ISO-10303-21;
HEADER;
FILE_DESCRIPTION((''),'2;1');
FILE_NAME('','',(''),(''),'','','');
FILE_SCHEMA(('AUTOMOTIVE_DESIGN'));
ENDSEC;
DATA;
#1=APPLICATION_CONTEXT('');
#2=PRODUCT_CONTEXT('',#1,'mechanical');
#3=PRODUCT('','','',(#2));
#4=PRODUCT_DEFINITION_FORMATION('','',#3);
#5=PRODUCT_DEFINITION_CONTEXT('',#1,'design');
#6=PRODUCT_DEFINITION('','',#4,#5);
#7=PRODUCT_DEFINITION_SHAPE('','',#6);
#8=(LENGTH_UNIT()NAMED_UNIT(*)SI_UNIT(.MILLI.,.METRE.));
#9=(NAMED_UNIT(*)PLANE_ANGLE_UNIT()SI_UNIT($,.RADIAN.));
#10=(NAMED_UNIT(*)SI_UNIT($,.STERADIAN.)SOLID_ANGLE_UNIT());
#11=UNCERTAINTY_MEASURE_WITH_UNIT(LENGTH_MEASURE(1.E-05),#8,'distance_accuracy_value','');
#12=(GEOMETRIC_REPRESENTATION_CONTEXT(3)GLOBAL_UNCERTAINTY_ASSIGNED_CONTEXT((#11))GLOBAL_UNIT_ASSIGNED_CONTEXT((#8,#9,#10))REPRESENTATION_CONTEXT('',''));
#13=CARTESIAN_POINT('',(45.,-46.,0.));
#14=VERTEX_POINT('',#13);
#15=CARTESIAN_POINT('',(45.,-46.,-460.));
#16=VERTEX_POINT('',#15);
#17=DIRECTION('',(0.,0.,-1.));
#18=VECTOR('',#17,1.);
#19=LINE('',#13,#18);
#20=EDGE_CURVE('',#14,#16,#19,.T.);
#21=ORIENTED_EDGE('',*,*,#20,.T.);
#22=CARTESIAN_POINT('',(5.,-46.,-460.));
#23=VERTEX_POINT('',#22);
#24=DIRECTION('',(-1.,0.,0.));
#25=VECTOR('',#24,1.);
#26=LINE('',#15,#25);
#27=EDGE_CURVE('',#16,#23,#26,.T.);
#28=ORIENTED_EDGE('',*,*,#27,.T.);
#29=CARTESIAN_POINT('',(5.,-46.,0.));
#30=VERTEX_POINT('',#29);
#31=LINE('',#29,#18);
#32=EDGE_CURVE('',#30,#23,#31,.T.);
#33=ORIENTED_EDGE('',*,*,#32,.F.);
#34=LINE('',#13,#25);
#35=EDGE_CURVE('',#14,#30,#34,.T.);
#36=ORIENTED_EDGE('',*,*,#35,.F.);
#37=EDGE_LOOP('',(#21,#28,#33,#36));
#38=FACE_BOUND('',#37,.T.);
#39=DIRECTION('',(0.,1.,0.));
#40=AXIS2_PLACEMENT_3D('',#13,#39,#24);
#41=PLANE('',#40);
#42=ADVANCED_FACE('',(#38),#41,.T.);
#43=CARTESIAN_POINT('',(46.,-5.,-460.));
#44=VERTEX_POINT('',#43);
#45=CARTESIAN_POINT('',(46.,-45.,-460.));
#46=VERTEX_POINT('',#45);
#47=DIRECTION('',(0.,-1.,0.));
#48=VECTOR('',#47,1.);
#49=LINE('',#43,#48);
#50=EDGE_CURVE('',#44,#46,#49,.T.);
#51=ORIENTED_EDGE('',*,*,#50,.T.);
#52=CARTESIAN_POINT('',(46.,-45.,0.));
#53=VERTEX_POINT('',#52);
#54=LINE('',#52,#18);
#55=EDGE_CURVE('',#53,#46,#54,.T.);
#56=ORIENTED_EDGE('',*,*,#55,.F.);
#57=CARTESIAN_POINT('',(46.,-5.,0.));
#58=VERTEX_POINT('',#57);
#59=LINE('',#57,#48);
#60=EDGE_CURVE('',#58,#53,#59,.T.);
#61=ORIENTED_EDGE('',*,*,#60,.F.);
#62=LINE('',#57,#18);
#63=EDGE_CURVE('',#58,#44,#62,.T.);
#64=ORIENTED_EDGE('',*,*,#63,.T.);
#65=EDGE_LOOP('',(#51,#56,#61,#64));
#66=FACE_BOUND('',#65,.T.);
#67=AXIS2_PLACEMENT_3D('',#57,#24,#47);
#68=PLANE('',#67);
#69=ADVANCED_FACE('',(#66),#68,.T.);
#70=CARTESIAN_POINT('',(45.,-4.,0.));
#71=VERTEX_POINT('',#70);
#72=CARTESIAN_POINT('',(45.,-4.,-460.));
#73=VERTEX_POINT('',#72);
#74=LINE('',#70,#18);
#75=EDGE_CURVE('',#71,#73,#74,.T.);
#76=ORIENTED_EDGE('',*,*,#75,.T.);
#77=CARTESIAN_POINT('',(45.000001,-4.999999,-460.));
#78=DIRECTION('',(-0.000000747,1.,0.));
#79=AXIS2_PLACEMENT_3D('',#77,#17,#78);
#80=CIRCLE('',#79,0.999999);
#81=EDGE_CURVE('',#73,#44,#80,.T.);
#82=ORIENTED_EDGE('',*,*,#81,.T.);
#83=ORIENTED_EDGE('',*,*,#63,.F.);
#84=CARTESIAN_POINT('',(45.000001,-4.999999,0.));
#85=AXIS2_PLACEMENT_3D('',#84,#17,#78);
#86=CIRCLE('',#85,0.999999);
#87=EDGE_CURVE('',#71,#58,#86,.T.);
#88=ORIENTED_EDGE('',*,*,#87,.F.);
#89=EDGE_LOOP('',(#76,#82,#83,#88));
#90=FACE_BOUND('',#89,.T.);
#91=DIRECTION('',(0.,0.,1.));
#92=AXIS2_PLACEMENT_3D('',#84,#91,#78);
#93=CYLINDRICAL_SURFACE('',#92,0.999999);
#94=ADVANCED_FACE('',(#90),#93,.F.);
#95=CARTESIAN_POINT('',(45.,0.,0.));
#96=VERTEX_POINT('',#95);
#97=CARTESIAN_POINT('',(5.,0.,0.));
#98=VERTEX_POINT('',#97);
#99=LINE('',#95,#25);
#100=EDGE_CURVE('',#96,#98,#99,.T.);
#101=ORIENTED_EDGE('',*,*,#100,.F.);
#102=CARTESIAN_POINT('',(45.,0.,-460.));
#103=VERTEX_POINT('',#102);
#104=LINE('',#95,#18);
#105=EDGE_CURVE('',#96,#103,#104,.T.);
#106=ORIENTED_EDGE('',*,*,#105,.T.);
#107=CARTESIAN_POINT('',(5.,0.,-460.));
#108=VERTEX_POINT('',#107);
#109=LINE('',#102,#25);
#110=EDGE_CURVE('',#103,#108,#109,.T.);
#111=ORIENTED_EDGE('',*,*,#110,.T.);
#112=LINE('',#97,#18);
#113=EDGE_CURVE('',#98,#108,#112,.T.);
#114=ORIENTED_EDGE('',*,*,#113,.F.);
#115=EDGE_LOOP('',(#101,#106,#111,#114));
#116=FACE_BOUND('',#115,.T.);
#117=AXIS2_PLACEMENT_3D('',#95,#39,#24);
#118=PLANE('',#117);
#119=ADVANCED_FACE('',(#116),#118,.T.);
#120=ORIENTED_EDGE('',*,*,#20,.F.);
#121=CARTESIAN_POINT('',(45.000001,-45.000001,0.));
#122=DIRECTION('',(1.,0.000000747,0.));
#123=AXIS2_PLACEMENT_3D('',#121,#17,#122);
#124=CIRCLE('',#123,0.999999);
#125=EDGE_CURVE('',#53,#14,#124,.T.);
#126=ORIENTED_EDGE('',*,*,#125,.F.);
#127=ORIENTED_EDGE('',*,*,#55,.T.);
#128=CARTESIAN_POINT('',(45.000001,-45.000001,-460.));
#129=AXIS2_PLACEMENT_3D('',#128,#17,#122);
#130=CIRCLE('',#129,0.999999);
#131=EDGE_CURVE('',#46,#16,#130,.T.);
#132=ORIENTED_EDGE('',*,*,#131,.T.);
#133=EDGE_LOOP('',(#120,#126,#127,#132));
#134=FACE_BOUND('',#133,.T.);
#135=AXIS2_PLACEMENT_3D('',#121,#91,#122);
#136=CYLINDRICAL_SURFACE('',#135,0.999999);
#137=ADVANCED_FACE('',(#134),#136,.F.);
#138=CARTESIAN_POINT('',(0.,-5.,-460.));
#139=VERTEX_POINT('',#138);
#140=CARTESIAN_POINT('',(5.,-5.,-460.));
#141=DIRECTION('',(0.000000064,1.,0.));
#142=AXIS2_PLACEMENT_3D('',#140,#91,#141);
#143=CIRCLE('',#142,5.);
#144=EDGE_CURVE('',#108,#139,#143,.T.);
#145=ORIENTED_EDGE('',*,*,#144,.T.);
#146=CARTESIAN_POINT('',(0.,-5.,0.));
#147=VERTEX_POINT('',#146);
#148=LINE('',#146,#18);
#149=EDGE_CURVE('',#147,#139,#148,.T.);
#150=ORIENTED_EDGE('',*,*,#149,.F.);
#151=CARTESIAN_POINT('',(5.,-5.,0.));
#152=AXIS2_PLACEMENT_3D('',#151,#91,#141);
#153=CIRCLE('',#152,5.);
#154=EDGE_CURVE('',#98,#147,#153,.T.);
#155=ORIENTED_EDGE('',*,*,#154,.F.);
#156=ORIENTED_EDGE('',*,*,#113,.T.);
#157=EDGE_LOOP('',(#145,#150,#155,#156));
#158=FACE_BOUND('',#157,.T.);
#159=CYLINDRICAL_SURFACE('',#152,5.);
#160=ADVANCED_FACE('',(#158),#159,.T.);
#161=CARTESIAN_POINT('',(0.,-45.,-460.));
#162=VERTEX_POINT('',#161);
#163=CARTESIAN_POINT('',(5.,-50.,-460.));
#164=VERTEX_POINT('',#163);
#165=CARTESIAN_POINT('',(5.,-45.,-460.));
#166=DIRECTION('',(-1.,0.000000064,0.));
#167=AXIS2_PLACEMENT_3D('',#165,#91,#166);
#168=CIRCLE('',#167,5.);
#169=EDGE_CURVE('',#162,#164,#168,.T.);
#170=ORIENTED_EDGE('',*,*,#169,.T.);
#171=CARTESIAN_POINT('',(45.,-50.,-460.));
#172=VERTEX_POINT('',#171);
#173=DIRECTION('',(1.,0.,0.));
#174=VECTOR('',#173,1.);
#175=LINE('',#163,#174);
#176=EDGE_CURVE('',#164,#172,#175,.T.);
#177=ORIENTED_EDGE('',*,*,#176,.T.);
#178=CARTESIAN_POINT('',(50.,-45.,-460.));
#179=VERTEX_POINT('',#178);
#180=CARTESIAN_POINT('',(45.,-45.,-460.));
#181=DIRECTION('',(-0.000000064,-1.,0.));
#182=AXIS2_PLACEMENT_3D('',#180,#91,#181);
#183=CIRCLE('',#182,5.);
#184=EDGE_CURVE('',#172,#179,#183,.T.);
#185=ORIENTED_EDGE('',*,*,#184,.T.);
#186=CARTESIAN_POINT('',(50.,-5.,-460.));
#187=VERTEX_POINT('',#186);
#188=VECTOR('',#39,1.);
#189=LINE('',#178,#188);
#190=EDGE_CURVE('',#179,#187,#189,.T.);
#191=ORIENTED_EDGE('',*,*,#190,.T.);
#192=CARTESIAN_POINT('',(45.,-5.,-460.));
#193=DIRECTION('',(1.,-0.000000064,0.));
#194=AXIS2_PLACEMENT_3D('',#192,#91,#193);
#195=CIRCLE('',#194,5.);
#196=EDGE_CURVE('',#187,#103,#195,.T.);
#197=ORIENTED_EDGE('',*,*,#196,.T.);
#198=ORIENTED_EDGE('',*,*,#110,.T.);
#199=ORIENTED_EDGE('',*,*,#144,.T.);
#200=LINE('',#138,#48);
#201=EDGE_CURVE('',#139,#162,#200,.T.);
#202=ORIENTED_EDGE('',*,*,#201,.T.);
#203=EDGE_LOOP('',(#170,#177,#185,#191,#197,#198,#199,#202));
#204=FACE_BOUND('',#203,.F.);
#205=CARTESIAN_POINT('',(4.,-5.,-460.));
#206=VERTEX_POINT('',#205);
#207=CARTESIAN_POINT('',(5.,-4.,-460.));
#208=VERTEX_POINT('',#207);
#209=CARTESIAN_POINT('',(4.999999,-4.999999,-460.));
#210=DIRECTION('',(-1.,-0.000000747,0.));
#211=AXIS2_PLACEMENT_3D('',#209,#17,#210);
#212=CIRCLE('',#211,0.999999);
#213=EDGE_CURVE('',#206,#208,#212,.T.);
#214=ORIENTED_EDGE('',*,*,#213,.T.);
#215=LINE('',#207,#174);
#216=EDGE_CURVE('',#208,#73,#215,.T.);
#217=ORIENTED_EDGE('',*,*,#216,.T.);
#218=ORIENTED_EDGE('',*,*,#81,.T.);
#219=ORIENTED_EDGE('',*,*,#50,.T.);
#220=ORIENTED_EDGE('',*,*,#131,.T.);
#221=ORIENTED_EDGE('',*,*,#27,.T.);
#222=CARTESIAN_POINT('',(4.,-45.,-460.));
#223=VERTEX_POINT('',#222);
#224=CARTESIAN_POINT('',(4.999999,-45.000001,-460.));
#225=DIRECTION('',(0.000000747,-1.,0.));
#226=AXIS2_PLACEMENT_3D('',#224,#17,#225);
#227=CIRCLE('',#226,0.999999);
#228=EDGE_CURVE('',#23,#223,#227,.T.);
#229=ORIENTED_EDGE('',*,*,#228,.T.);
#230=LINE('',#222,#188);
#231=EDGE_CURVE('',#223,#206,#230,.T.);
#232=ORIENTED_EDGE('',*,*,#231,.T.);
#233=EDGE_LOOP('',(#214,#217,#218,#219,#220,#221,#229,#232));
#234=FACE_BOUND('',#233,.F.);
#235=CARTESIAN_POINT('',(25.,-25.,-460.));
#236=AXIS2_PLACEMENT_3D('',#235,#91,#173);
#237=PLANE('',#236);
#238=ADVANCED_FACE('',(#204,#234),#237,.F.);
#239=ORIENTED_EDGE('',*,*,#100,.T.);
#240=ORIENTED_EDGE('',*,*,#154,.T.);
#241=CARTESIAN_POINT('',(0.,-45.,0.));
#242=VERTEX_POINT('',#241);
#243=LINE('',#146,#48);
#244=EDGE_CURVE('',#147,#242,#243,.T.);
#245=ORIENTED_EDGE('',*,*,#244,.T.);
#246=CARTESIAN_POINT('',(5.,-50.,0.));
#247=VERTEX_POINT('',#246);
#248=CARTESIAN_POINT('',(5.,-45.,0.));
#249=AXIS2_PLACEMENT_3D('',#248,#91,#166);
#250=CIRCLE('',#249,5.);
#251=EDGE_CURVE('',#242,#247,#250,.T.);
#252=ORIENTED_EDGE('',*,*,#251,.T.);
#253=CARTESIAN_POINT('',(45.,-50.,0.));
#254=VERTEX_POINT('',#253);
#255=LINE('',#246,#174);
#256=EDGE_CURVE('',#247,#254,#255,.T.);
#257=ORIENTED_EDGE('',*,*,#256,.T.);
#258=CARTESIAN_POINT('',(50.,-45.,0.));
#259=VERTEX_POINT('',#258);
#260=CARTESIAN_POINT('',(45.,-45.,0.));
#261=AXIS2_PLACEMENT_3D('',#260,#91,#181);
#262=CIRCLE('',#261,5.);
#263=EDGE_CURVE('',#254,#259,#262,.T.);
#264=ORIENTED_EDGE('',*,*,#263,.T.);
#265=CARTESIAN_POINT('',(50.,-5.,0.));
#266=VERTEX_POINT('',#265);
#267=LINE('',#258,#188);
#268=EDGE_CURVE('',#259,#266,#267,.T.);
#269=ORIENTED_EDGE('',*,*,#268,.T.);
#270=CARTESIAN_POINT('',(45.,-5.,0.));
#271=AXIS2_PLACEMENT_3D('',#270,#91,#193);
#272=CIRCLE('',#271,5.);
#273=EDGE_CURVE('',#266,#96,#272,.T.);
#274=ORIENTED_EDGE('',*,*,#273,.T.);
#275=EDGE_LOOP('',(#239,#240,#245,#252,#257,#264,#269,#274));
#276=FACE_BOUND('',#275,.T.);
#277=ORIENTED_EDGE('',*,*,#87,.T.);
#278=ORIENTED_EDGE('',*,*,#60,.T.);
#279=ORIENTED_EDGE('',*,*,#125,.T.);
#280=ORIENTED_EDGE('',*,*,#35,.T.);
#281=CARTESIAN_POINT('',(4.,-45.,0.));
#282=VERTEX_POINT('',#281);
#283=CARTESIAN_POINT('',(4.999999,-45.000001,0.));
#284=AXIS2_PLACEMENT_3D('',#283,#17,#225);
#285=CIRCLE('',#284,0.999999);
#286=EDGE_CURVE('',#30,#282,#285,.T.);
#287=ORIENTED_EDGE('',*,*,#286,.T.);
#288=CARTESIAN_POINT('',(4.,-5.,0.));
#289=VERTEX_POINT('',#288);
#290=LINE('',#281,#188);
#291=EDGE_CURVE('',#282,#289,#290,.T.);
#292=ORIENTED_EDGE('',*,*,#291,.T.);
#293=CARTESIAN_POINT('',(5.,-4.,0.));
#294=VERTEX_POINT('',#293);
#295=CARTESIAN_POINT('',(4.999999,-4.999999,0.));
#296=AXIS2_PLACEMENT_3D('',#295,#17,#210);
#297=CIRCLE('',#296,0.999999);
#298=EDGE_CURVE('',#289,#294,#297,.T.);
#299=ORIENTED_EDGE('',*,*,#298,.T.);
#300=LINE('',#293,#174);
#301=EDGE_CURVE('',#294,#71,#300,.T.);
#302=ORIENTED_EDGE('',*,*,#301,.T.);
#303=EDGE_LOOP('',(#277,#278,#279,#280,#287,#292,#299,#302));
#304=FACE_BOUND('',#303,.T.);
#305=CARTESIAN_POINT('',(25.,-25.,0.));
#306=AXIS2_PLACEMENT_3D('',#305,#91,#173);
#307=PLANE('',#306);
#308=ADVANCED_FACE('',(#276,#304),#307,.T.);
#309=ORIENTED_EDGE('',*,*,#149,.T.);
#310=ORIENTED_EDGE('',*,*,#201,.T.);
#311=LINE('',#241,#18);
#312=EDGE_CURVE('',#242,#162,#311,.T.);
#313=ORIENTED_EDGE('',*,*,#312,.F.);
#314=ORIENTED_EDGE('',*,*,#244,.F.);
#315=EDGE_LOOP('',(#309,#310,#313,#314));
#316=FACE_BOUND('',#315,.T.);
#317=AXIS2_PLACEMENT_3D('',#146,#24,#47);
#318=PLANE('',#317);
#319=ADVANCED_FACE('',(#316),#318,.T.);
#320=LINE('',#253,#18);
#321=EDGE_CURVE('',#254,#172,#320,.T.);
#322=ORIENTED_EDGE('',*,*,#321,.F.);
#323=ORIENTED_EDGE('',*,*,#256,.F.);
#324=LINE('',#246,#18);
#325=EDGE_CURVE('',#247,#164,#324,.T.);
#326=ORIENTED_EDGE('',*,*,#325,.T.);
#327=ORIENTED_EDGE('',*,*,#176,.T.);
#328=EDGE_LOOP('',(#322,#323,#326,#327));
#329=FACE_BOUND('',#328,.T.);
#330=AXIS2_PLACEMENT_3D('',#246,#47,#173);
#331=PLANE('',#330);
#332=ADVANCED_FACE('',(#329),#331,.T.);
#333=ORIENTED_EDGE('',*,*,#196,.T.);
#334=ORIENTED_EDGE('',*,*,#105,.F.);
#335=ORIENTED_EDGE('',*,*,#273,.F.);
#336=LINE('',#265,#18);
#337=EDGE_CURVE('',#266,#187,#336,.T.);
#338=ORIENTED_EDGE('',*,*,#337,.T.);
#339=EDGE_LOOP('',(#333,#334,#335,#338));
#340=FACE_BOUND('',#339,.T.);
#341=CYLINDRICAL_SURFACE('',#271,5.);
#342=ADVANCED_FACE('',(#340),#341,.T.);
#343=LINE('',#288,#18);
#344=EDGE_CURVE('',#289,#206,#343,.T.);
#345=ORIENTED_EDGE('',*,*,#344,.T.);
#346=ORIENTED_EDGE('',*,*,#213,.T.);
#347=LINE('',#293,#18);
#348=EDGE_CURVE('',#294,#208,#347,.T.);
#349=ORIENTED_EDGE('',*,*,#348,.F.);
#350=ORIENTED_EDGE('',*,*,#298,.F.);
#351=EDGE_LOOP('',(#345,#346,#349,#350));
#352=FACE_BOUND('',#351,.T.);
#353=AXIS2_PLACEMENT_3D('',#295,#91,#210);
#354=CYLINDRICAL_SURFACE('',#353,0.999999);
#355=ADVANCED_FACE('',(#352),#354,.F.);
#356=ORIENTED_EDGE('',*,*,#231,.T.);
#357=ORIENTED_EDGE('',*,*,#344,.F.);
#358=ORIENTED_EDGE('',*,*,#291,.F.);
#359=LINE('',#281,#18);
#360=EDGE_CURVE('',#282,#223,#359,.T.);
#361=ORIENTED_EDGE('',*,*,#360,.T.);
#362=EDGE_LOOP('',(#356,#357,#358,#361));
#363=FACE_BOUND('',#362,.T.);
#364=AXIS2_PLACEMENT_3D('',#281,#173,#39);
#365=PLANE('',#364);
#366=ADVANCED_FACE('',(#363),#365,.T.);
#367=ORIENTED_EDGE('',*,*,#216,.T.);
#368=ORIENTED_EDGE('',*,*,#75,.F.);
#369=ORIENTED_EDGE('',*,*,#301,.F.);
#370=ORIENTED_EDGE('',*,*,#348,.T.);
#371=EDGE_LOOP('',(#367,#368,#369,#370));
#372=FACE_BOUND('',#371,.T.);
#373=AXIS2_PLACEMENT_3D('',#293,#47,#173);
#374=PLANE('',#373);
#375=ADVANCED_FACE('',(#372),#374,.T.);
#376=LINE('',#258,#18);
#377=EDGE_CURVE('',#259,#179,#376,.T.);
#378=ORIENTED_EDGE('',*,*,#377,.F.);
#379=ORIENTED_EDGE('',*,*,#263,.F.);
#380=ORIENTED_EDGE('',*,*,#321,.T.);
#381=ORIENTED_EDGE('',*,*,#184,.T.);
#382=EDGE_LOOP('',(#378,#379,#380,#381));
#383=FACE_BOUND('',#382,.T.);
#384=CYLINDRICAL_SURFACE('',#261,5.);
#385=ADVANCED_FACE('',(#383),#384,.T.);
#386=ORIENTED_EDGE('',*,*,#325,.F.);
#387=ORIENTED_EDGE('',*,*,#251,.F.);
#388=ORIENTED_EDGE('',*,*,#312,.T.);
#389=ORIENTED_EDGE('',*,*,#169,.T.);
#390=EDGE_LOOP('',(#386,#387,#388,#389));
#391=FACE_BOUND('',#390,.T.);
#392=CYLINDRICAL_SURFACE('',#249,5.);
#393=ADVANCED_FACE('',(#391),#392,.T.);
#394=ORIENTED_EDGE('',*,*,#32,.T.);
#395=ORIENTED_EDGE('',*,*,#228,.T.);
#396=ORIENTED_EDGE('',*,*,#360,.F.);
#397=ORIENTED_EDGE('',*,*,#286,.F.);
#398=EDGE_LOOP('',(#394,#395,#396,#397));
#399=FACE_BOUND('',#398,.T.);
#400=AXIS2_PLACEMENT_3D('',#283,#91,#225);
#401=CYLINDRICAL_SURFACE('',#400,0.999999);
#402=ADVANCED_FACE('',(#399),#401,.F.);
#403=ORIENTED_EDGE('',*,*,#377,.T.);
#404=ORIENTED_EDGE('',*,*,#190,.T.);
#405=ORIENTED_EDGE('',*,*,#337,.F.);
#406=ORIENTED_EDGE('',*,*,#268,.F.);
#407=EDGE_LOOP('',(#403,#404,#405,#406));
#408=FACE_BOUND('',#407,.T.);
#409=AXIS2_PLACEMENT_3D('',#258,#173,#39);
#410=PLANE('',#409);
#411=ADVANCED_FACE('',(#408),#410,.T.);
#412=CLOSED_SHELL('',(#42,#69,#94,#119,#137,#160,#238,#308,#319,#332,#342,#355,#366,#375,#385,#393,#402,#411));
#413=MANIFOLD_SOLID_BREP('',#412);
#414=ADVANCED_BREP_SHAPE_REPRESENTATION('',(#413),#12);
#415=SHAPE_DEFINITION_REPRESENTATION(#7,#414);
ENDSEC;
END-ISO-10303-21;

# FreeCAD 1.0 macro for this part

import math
import FreeCAD as App
import Part
import Sketcher

doc = App.newDocument("Part")
body = doc.addObject("PartDesign::Body", "Body")

sketch1 = body.newObject("Sketcher::SketchObject", "Sketch")
sketch1.AttachmentSupport = (doc.getObject("XY_Plane"), [""])
sketch1.MapMode = "FlatFace"
sketch1.addGeometry(Part.LineSegment(App.Vector(45, 0, 0), App.Vector(5, 0, 0)), False)
sketch1.addGeometry(Part.ArcOfCircle(Part.Circle(App.Vector(5, -5, 0), App.Vector(0, 0, 1), 5), math.radians(90), math.radians(180)), False)
sketch1.addGeometry(Part.LineSegment(App.Vector(0, -5, 0), App.Vector(0, -45, 0)), False)
sketch1.addGeometry(Part.ArcOfCircle(Part.Circle(App.Vector(5, -45, 0), App.Vector(0, 0, 1), 5), math.radians(180), math.radians(270)), False)
sketch1.addGeometry(Part.LineSegment(App.Vector(5, -50, 0), App.Vector(45, -50, 0)), False)
sketch1.addGeometry(Part.ArcOfCircle(Part.Circle(App.Vector(45, -45, 0), App.Vector(0, 0, 1), 5), math.radians(-90), math.radians(0)), False)
sketch1.addGeometry(Part.LineSegment(App.Vector(50, -45, 0), App.Vector(50, -5, 0)), False)
sketch1.addGeometry(Part.ArcOfCircle(Part.Circle(App.Vector(45, -5, 0), App.Vector(0, 0, 1), 5), math.radians(0), math.radians(90)), False)
sketch1.addGeometry(Part.ArcOfCircle(Part.Circle(App.Vector(5, -45, 0), App.Vector(0, 0, 1), 1), math.radians(180), math.radians(270)), False)
sketch1.addGeometry(Part.LineSegment(App.Vector(4, -45, 0), App.Vector(4, -5, 0)), False)
sketch1.addGeometry(Part.ArcOfCircle(Part.Circle(App.Vector(5, -5, 0), App.Vector(0, 0, 1), 1), math.radians(90), math.radians(180)), False)
sketch1.addGeometry(Part.LineSegment(App.Vector(5, -4, 0), App.Vector(45, -4, 0)), False)
sketch1.addGeometry(Part.ArcOfCircle(Part.Circle(App.Vector(45, -5, 0), App.Vector(0, 0, 1), 1), math.radians(0), math.radians(90)), False)
sketch1.addGeometry(Part.LineSegment(App.Vector(46, -5, 0), App.Vector(46, -45, 0)), False)
sketch1.addGeometry(Part.ArcOfCircle(Part.Circle(App.Vector(45, -45, 0), App.Vector(0, 0, 1), 1), math.radians(-90), math.radians(0)), False)
sketch1.addGeometry(Part.LineSegment(App.Vector(45, -46, 0), App.Vector(5, -46, 0)), False)
sketch1.addConstraint(Sketcher.Constraint("Tangent", 0, 2, 1, 1))
sketch1.addConstraint(Sketcher.Constraint("Tangent", 1, 2, 2, 1))
sketch1.addConstraint(Sketcher.Constraint("Tangent", 2, 2, 3, 1))
sketch1.addConstraint(Sketcher.Constraint("Tangent", 3, 2, 4, 1))
sketch1.addConstraint(Sketcher.Constraint("Tangent", 4, 2, 5, 1))
sketch1.addConstraint(Sketcher.Constraint("Tangent", 5, 2, 6, 1))
sketch1.addConstraint(Sketcher.Constraint("Tangent", 6, 2, 7, 1))
sketch1.addConstraint(Sketcher.Constraint("Tangent", 7, 2, 0, 1))
sketch1.addConstraint(Sketcher.Constraint("Tangent", 8, 1, 9, 1))
sketch1.addConstraint(Sketcher.Constraint("Tangent", 9, 2, 10, 2))
sketch1.addConstraint(Sketcher.Constraint("Tangent", 10, 1, 11, 1))
sketch1.addConstraint(Sketcher.Constraint("Tangent", 11, 2, 12, 2))
sketch1.addConstraint(Sketcher.Constraint("Tangent", 12, 1, 13, 1))
sketch1.addConstraint(Sketcher.Constraint("Tangent", 13, 2, 14, 2))
sketch1.addConstraint(Sketcher.Constraint("Tangent", 14, 1, 15, 1))
sketch1.addConstraint(Sketcher.Constraint("Tangent", 15, 2, 8, 2))
sketch1.addConstraint(Sketcher.Constraint("Horizontal", 0))
sketch1.addConstraint(Sketcher.Constraint("Vertical", 2))
sketch1.addConstraint(Sketcher.Constraint("Horizontal", 4))
sketch1.addConstraint(Sketcher.Constraint("Vertical", 6))
sketch1.addConstraint(Sketcher.Constraint("Vertical", 9))
sketch1.addConstraint(Sketcher.Constraint("Horizontal", 11))
sketch1.addConstraint(Sketcher.Constraint("Vertical", 13))
sketch1.addConstraint(Sketcher.Constraint("Horizontal", 15))
sketch1.addConstraint(Sketcher.Constraint("Coincident", 8, 3, 3, 3))
sketch1.addConstraint(Sketcher.Constraint("Coincident", 10, 3, 1, 3))
sketch1.addConstraint(Sketcher.Constraint("Coincident", 12, 3, 7, 3))
sketch1.addConstraint(Sketcher.Constraint("Equal", 1, 3))
sketch1.addConstraint(Sketcher.Constraint("Equal", 3, 5))
sketch1.addConstraint(Sketcher.Constraint("Equal", 5, 7))
sketch1.addConstraint(Sketcher.Constraint("Equal", 12, 14))
sketch1.addConstraint(Sketcher.Constraint("PointOnObject", 0, 2, -1))
sketch1.addConstraint(Sketcher.Constraint("PointOnObject", 1, 2, -2))
sketch1.addConstraint(Sketcher.Constraint("Equal", 15, 2))
sketch1.addConstraint(Sketcher.Constraint("Radius", 1, 5.0))
sketch1.addConstraint(Sketcher.Constraint("Radius", 8, 0.999999))
sketch1.addConstraint(Sketcher.Constraint("DistanceX", 0, 2, 0, 1, 40.0))
pad1 = body.newObject("PartDesign::Pad", "Pad")
pad1.Profile = sketch1
pad1.Length = 460
pad1.Reversed = True

doc.recompute()
